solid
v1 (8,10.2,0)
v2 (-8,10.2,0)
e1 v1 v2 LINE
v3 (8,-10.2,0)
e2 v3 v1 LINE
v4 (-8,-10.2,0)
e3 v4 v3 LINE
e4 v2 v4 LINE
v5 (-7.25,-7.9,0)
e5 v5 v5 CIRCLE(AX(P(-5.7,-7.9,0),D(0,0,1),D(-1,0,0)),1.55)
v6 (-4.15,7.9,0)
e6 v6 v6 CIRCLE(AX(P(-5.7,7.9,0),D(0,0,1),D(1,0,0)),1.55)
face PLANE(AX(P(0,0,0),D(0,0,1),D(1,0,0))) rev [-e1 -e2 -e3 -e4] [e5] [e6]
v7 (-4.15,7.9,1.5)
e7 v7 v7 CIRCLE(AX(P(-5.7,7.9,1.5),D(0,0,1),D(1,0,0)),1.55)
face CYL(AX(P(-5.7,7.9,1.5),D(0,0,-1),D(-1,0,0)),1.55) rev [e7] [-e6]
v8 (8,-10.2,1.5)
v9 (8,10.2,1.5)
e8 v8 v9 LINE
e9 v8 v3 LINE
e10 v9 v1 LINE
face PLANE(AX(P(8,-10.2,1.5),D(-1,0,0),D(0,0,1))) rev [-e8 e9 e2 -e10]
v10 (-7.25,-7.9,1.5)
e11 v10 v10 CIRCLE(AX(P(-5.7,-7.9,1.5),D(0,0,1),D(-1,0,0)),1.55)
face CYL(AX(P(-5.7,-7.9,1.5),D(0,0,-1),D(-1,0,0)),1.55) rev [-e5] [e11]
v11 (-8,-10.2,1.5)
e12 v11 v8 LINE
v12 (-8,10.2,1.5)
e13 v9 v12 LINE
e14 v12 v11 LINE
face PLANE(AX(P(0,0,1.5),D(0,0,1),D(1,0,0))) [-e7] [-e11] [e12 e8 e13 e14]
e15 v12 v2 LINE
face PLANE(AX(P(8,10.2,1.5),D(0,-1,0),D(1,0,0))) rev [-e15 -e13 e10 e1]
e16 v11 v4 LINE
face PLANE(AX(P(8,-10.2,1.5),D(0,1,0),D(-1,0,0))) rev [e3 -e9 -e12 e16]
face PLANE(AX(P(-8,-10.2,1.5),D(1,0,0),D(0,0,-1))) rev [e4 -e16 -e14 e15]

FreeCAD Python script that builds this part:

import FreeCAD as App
import Part
import Sketcher

V = App.Vector
Q = App.Units.Quantity

doc = App.newDocument("Part")
params = doc.addObject("Spreadsheet::Sheet", "Params")
for row, (alias, value) in enumerate([
    ("sketch1_diameter", "3.1 mm"),
    ("sketch1_width", "16 mm"),
    ("sketch1_height", "20.4 mm"),
    ("pad1_length", "1.5 mm"),
], start=1):
    params.set(f"A{row}", alias)
    params.set(f"B{row}", "=" + value)
    params.setAlias(f"B{row}", alias)

body = doc.addObject("PartDesign::Body", "Body")

# Sketch on XY plane
sketch1 = body.newObject("Sketcher::SketchObject", "Sketch")
sketch1.AttachmentSupport = (doc.getObject("XY_Plane"), [""])
sketch1.MapMode = "FlatFace"
sketch1.addGeometry([
    Part.LineSegment(V(-8, 10.2, 0), V(-8, -10.2, 0)),  # 0
    Part.LineSegment(V(-8, -10.2, 0), V(8, -10.2, 0)),  # 1
    Part.LineSegment(V(8, -10.2, 0), V(8, 10.2, 0)),  # 2
    Part.LineSegment(V(8, 10.2, 0), V(-8, 10.2, 0)),  # 3
    Part.Circle(V(-5.7, -7.9, 0), V(0, 0, 1), 1.6),  # 4
    Part.Circle(V(-5.7, 7.9, 0), V(0, 0, 1), 1.6),  # 5
], False)
sketch1.addConstraint([
    Sketcher.Constraint("Coincident", 0, 2, 1, 1),
    Sketcher.Constraint("Coincident", 1, 2, 2, 1),
    Sketcher.Constraint("Coincident", 2, 2, 3, 1),
    Sketcher.Constraint("Coincident", 3, 2, 0, 1),
    Sketcher.Constraint("Vertical", 0),
    Sketcher.Constraint("Horizontal", 1),
    Sketcher.Constraint("Vertical", 2),
    Sketcher.Constraint("Horizontal", 3),
    Sketcher.Constraint("Equal", 4, 5),
    Sketcher.Constraint("Symmetric", 0, 2, 2, 2, -1, 1),
    Sketcher.Constraint("Symmetric", 4, 3, 5, 3, -1),
    Sketcher.Constraint("Diameter", 4, Q("3.1 mm")),
    Sketcher.Constraint("DistanceX", 1, 1, 1, 2, Q("16 mm")),
    Sketcher.Constraint("DistanceY", 0, 2, 0, 1, Q("20.4 mm")),
    Sketcher.Constraint("DistanceX", 4, 3, -1, 1, Q("5.7 mm")),
    Sketcher.Constraint("DistanceY", 4, 3, -1, 1, Q("7.9 mm")),
])
sketch1.setExpression("Constraints[11]", "Params.sketch1_diameter")
sketch1.setExpression("Constraints[12]", "Params.sketch1_width")
sketch1.setExpression("Constraints[13]", "Params.sketch1_height")
pad1 = body.newObject("PartDesign::Pad", "Pad")
pad1.Profile = sketch1
pad1.setExpression("Length", "Params.pad1_length")

doc.recompute()
